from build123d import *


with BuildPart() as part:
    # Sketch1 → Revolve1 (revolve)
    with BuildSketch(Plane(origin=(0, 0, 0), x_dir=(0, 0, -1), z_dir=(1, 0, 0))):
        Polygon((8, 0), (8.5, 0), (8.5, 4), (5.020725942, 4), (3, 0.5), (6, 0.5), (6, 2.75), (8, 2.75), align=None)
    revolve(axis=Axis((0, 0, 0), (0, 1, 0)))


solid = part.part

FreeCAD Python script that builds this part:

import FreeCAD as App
import Part
import Sketcher
from FreeCAD import Vector
Q = App.Units.Quantity

doc = App.newDocument("Part")
body = doc.addObject("PartDesign::Body", "Body")

sketch1 = doc.addObject("Sketcher::SketchObject", "Sketch")
body.addObject(sketch1)
sketch1.AttachmentSupport = (doc.YZ_Plane, [""])
sketch1.MapMode = "FlatFace"
sketch1.addGeometry(Part.LineSegment(Vector(0, -8, 0), Vector(0, -8.5, 0)), False)
sketch1.addGeometry(Part.LineSegment(Vector(0, -8.5, 0), Vector(4, -8.5, 0)), False)
sketch1.addGeometry(Part.LineSegment(Vector(4, -8.5, 0), Vector(4, -5, 0)), False)
sketch1.addGeometry(Part.LineSegment(Vector(4, -5, 0), Vector(0.5, -3, 0)), False)
sketch1.addGeometry(Part.LineSegment(Vector(0.5, -3, 0), Vector(0.5, -6, 0)), False)
sketch1.addGeometry(Part.LineSegment(Vector(0.5, -6, 0), Vector(2.8, -6, 0)), False)
sketch1.addGeometry(Part.LineSegment(Vector(2.8, -6, 0), Vector(2.8, -8, 0)), False)
sketch1.addGeometry(Part.LineSegment(Vector(2.8, -8, 0), Vector(0, -8, 0)), False)
sketch1.addConstraint(Sketcher.Constraint("Coincident", 0, 2, 1, 1))
sketch1.addConstraint(Sketcher.Constraint("Coincident", 1, 2, 2, 1))
sketch1.addConstraint(Sketcher.Constraint("Coincident", 2, 2, 3, 1))
sketch1.addConstraint(Sketcher.Constraint("Coincident", 3, 2, 4, 1))
sketch1.addConstraint(Sketcher.Constraint("Coincident", 4, 2, 5, 1))
sketch1.addConstraint(Sketcher.Constraint("Coincident", 5, 2, 6, 1))
sketch1.addConstraint(Sketcher.Constraint("Coincident", 6, 2, 7, 1))
sketch1.addConstraint(Sketcher.Constraint("Coincident", 7, 2, 0, 1))
sketch1.addConstraint(Sketcher.Constraint("Vertical", 0))
sketch1.addConstraint(Sketcher.Constraint("Horizontal", 1))
sketch1.addConstraint(Sketcher.Constraint("Vertical", 2))
sketch1.addConstraint(Sketcher.Constraint("Vertical", 4))
sketch1.addConstraint(Sketcher.Constraint("Horizontal", 5))
sketch1.addConstraint(Sketcher.Constraint("Vertical", 6))
sketch1.addConstraint(Sketcher.Constraint("Horizontal", 7))
sketch1.addConstraint(Sketcher.Constraint("PointOnObject", 0, 2, -2))
sketch1.addConstraint(Sketcher.Constraint("DistanceX", 1, 1, 1, 2, 4.0))
sketch1.addConstraint(Sketcher.Constraint("DistanceY", 4, 2, 4, 1, 3.0))
sketch1.addConstraint(Sketcher.Constraint("DistanceY", 6, 2, 6, 1, 2.0))
sketch1.addConstraint(Sketcher.Constraint("Angle", 3, Q("150 deg")))
sketch1.addConstraint(Sketcher.Constraint("DistanceY", 0, 2, 0, 1, 0.5))
sketch1.addConstraint(Sketcher.Constraint("DistanceY", 3, 2, -1, 1, 3.0))
sketch1.addConstraint(Sketcher.Constraint("DistanceX", 5, 1, 5, 2, 2.25))
sketch1.addConstraint(Sketcher.Constraint("DistanceX", 7, 2, 7, 1, 2.75))
revolution = doc.addObject("PartDesign::Revolution", "Revolution")
body.addObject(revolution)
revolution.Profile = sketch1
revolution.ReferenceAxis = (sketch1, ["H_Axis"])
revolution.Angle = 360

doc.recompute()
